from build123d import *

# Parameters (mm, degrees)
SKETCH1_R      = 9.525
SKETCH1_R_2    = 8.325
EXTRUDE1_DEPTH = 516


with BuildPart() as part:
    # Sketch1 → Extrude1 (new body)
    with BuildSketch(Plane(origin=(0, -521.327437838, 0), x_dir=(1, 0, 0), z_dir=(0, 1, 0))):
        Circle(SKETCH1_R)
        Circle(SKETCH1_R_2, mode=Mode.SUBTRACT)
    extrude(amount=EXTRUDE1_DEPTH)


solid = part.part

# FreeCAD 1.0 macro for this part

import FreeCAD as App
import Part
import Sketcher

V = App.Vector

doc = App.newDocument("Part")
body = doc.addObject("PartDesign::Body", "Body")

sketch1 = doc.addObject("Sketcher::SketchObject", "Sketch")
body.addObject(sketch1)
sketch1.AttachmentSupport = (doc.XZ_Plane, [""])
sketch1.MapMode = "FlatFace"
sketch1.AttachmentOffset = App.Placement(V(0, 0, 521.327438), App.Rotation())
sketch1.addGeometry([
    Part.Circle(V(0, 0, 0), V(0, 0, 1), 10),
    Part.Circle(V(0, 0, 0), V(0, 0, 1), 8),
], False)
sketch1.addConstraint([
    Sketcher.Constraint("Coincident", 0, 3, -1, 1),
    Sketcher.Constraint("Coincident", 1, 3, -1, 1),
    Sketcher.Constraint("Diameter", 0, 19.05),
    Sketcher.Constraint("Diameter", 1, 16.65),
])
pad1 = doc.addObject("PartDesign::Pad", "Pad")
body.addObject(pad1)
pad1.Profile = sketch1
pad1.Length = 516
pad1.Reversed = True

doc.recompute()
